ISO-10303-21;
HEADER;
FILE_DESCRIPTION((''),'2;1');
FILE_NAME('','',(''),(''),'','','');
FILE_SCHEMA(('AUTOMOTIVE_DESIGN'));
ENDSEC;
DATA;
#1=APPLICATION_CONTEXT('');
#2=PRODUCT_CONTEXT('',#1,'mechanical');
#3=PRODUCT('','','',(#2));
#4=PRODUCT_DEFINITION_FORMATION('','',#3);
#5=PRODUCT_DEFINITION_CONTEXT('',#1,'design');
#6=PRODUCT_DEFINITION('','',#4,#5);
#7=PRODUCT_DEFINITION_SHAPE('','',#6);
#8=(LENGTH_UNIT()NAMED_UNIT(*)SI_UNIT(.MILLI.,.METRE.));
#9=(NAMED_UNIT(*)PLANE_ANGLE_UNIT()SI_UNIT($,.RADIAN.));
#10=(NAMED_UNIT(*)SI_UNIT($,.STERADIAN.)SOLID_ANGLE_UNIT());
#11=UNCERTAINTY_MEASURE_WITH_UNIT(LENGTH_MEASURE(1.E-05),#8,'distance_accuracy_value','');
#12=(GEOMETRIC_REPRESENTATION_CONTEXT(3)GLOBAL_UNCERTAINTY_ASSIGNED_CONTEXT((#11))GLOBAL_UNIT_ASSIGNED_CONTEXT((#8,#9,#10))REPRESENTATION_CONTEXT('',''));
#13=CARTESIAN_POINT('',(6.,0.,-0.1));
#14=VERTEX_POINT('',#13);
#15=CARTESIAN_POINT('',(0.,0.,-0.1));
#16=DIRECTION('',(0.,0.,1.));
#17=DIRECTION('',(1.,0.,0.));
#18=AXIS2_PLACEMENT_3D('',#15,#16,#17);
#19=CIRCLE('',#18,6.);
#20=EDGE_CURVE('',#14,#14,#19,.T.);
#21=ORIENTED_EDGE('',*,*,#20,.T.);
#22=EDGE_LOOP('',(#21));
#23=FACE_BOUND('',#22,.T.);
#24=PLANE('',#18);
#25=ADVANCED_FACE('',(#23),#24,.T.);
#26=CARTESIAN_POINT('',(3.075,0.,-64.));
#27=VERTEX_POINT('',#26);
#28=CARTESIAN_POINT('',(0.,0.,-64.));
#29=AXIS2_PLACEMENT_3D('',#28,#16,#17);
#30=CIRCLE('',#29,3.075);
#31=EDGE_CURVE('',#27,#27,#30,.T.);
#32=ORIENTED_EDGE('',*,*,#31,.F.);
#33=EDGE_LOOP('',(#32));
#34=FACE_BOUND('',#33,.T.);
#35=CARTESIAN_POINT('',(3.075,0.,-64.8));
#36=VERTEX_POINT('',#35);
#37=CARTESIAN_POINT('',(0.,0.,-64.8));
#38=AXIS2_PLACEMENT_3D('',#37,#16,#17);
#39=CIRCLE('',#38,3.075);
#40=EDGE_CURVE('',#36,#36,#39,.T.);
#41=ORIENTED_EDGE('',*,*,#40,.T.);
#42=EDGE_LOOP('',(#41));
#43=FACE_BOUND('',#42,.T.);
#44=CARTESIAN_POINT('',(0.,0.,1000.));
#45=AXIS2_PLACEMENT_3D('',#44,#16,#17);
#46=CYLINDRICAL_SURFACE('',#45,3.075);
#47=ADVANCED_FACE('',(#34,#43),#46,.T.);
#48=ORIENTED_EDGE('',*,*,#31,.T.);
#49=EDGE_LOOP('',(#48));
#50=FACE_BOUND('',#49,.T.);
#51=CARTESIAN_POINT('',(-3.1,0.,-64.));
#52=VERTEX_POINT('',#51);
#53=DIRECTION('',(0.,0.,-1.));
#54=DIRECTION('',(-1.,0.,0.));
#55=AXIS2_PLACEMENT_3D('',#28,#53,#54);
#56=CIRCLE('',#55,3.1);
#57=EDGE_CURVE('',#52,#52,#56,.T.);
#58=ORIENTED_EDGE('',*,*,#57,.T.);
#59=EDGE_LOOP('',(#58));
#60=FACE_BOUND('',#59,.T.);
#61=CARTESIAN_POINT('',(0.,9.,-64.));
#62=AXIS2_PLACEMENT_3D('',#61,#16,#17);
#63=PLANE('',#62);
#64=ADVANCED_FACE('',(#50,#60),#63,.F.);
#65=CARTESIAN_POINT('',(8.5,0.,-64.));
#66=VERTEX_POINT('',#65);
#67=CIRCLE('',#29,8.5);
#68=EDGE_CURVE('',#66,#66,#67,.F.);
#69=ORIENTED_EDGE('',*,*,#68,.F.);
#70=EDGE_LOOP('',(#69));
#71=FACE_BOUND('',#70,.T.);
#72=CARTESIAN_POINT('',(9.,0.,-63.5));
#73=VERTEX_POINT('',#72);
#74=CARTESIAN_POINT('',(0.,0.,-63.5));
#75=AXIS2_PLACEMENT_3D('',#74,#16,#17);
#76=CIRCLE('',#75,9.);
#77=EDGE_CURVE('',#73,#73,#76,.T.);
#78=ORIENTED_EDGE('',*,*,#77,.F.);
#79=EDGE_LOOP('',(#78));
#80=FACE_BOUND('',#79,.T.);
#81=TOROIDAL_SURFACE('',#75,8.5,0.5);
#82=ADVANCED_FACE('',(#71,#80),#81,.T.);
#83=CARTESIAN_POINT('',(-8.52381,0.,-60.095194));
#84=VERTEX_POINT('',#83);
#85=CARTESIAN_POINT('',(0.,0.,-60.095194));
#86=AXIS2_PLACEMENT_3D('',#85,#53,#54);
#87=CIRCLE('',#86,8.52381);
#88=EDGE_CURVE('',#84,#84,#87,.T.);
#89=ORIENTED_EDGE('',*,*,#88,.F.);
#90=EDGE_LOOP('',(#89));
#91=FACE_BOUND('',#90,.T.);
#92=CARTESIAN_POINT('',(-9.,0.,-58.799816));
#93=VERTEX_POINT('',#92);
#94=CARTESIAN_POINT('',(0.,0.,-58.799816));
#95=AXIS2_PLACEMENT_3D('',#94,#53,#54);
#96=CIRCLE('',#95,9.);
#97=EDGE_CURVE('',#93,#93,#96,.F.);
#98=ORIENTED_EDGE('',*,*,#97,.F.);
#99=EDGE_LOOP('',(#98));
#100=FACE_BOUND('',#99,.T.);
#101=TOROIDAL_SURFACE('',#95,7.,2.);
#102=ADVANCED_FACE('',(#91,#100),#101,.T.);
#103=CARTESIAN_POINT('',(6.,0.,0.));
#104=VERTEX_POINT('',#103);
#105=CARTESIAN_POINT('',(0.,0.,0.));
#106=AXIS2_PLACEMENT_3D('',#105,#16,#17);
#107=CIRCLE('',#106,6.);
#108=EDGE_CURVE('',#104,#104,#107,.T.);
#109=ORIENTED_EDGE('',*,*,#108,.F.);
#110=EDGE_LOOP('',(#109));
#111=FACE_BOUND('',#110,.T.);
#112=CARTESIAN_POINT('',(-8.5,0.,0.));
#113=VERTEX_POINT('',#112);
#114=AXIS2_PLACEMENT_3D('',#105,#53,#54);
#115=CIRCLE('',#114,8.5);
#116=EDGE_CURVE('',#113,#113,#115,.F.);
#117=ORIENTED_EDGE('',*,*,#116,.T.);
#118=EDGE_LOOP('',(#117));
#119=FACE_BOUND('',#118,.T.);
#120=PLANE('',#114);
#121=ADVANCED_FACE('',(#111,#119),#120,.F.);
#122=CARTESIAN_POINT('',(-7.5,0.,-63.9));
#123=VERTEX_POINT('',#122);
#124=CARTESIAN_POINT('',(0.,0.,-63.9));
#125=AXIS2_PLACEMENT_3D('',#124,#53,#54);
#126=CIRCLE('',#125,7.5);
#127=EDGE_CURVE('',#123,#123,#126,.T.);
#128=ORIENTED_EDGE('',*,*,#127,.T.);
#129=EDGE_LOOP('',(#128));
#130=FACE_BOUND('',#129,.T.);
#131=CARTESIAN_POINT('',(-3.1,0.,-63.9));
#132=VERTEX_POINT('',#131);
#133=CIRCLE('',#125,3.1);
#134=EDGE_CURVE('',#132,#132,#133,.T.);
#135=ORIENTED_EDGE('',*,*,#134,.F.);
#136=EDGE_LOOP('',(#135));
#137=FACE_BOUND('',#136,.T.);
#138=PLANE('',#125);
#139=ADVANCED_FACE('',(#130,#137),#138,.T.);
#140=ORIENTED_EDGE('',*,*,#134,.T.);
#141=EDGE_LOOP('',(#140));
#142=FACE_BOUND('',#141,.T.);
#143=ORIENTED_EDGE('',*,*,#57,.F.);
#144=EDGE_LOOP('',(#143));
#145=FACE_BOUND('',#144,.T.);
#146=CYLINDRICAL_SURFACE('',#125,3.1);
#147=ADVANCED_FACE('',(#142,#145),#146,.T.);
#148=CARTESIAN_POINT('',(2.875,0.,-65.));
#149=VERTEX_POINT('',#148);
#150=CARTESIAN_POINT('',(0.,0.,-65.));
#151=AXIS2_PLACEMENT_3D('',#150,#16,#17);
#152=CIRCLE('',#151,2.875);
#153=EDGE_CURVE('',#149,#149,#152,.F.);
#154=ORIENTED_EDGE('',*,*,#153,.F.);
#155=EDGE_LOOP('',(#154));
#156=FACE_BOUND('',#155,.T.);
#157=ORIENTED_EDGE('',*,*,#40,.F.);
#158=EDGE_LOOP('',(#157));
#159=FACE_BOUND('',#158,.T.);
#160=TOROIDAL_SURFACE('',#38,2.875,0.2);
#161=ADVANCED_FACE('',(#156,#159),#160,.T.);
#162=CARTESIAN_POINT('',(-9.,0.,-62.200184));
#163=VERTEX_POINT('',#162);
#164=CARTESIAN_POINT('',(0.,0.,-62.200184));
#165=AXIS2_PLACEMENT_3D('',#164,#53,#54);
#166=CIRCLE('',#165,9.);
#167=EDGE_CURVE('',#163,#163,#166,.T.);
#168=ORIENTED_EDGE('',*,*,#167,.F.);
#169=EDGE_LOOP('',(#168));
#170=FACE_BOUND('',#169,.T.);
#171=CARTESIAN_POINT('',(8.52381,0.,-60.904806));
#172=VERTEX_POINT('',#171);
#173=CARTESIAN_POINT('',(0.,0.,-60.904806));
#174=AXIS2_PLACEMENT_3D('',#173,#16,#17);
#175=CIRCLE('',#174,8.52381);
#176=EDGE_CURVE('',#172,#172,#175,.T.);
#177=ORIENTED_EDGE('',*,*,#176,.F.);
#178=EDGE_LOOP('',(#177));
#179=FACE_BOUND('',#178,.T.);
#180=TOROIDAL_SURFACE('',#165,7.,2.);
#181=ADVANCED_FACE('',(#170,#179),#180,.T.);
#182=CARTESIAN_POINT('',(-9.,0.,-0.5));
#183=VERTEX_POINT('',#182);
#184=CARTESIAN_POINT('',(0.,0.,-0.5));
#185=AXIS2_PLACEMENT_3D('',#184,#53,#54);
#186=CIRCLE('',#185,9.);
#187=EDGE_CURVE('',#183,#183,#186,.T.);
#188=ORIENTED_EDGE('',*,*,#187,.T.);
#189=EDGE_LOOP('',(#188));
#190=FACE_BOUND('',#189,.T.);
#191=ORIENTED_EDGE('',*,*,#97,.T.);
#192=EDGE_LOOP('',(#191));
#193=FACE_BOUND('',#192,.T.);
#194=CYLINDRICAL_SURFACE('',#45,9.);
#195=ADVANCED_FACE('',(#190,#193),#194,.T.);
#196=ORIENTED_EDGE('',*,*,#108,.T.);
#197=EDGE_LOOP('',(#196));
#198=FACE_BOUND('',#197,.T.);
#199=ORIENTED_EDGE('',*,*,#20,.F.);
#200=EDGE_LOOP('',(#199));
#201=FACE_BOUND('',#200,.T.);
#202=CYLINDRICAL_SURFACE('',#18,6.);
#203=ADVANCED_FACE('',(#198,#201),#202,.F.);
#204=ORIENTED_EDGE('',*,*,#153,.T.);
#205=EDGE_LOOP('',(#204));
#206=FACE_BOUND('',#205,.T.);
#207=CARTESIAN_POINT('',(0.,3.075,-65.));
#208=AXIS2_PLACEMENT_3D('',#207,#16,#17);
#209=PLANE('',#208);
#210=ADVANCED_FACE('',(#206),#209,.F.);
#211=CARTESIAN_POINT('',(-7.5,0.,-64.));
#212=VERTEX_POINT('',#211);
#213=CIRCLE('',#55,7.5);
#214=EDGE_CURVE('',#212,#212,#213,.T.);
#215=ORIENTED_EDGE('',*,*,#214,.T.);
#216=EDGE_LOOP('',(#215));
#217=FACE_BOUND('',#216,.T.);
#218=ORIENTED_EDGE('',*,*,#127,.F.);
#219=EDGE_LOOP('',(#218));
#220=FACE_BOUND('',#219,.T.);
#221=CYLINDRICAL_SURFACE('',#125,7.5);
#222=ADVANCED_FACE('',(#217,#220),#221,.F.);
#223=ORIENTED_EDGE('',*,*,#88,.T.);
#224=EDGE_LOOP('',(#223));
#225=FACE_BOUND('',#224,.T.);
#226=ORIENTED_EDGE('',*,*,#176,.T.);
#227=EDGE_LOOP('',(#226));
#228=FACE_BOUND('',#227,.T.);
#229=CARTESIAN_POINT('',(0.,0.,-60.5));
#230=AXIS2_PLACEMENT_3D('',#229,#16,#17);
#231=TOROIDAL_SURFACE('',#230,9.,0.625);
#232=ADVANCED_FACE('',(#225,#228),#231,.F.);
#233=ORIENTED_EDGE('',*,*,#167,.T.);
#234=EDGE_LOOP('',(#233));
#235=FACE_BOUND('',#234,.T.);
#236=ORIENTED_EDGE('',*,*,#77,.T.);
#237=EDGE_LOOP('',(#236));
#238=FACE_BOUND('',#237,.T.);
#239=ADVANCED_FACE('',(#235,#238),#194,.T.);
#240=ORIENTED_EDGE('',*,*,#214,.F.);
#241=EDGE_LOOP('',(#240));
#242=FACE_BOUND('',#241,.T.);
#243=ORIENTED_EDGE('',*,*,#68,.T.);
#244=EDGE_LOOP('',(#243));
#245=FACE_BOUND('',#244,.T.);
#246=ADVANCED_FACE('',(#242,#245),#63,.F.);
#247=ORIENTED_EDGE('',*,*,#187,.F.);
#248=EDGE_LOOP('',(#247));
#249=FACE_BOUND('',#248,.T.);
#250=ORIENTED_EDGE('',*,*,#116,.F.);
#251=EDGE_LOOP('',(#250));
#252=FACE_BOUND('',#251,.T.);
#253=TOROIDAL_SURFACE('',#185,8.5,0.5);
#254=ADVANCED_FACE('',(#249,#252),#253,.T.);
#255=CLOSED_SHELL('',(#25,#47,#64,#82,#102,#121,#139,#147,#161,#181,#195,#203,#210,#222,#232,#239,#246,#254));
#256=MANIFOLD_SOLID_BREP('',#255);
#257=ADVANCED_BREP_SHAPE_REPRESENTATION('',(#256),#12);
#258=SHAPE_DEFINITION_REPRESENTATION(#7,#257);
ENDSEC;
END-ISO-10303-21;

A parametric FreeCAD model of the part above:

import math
import FreeCAD as App
import Part
import Sketcher


def edges_at(feature, points):
    """Names of the edges that pass closest to the given points."""
    edges = feature.Shape.Edges
    near = lambda p: min(range(len(edges)), key=lambda i: edges[i].distToShape(Part.Vertex(*p))[0])
    return sorted({f"Edge{near(p) + 1}" for p in points})

doc = App.newDocument("Part")
body = doc.addObject("PartDesign::Body", "Body")

sketch1 = body.newObject("Sketcher::SketchObject", "Sketch")
sketch1.AttachmentSupport = (doc.getObject("YZ_Plane"), [""])
sketch1.MapMode = "FlatFace"
sketch1.addGeometry([
    Part.LineSegment(App.Vector(9, 0, 0), App.Vector(0, 0, 0)),
    Part.LineSegment(App.Vector(0, 0, 0), App.Vector(0, -65, 0)),
    Part.LineSegment(App.Vector(0, -65, 0), App.Vector(3.1, -65, 0)),
    Part.LineSegment(App.Vector(3.1, -65, 0), App.Vector(3.1, -64, 0)),
    Part.LineSegment(App.Vector(3.1, -64, 0), App.Vector(9, -64, 0)),
    Part.LineSegment(App.Vector(9, -64, 0), App.Vector(9, -61.1, 0)),
    Part.ArcOfCircle(Part.Circle(App.Vector(9, -60.5, 0), App.Vector(0, 0, 1), 0.6), math.radians(90), math.radians(270)),
    Part.LineSegment(App.Vector(9, -59.9, 0), App.Vector(9, 0, 0)),
], False)
sketch1.addConstraint([
    Sketcher.Constraint("Coincident", 0, 2, 1, 1),
    Sketcher.Constraint("Coincident", 1, 2, 2, 1),
    Sketcher.Constraint("Coincident", 2, 2, 3, 1),
    Sketcher.Constraint("Coincident", 3, 2, 4, 1),
    Sketcher.Constraint("Coincident", 4, 2, 5, 1),
    Sketcher.Constraint("Coincident", 5, 2, 6, 2),
    Sketcher.Constraint("Coincident", 6, 1, 7, 1),
    Sketcher.Constraint("Coincident", 7, 2, 0, 1),
    Sketcher.Constraint("Horizontal", 0),
    Sketcher.Constraint("Vertical", 1),
    Sketcher.Constraint("Horizontal", 2),
    Sketcher.Constraint("Vertical", 3),
    Sketcher.Constraint("Horizontal", 4),
    Sketcher.Constraint("Vertical", 5),
    Sketcher.Constraint("Vertical", 7),
    Sketcher.Constraint("Coincident", 0, 2, -1, 1),
    Sketcher.Constraint("Vertical", 6, 3, 4, 2),
    Sketcher.Constraint("Vertical", 5, 2, 6, 1),
    Sketcher.Constraint("DistanceX", 0, 2, 0, 1, 9.0),
    Sketcher.Constraint("DistanceY", 1, 2, 1, 1, 65.0),
    Sketcher.Constraint("DistanceY", 3, 1, 3, 2, 1.0),
    Sketcher.Constraint("Radius", 6, 0.625),
    Sketcher.Constraint("DistanceY", 6, 3, -1, 1, 60.5),
    Sketcher.Constraint("DistanceX", 2, 1, 2, 2, 3.075),
])
revolution = body.newObject("PartDesign::Revolution", "Revolution")
revolution.Profile = sketch1
revolution.ReferenceAxis = (sketch1, ["V_Axis"])
revolution.Angle = 360
doc.recompute()

fillet = body.newObject("PartDesign::Fillet", "Fillet")
fillet.Base = (revolution, edges_at(revolution, [(-9, 0, 0), (-9, 0, -64)]))
fillet.Radius = 0.5
doc.recompute()

fillet2 = body.newObject("PartDesign::Fillet", "Fillet001")
fillet2.Base = (fillet, edges_at(fillet, [(-9, 0, -59.875), (-9, 0, -61.125)]))
fillet2.Radius = 2
doc.recompute()

fillet3 = body.newObject("PartDesign::Fillet", "Fillet002")
fillet3.Base = (fillet2, edges_at(fillet2, [(-3.075, 0, -65)]))
fillet3.Radius = 0.2

sketch2 = body.newObject("Sketcher::SketchObject", "Sketch001")
sketch2.AttachmentSupport = (doc.getObject("XY_Plane"), [""])
sketch2.MapMode = "FlatFace"
sketch2.addGeometry(Part.Circle(App.Vector(0, 0, 0), App.Vector(0, 0, 1), 6), False)
sketch2.addConstraint([
    Sketcher.Constraint("Coincident", 0, 3, -1, 1),
    Sketcher.Constraint("Diameter", 0, 12.0),
])
pocket1 = body.newObject("PartDesign::Pocket", "Pocket")
pocket1.Profile = sketch2
pocket1.Length = 0.1

sketch3 = body.newObject("Sketcher::SketchObject", "Sketch002")
sketch3.AttachmentSupport = (doc.getObject("XY_Plane"), [""])
sketch3.MapMode = "FlatFace"
sketch3.AttachmentOffset = App.Placement(App.Vector(0, 0, -64), App.Rotation())
sketch3.addGeometry([
    Part.Circle(App.Vector(0, 0, 0), App.Vector(0, 0, 1), 7.5),
    Part.Circle(App.Vector(0, 0, 0), App.Vector(0, 0, 1), 3.1),
], False)
sketch3.addConstraint([
    Sketcher.Constraint("Coincident", 0, 3, -1, 1),
    Sketcher.Constraint("Coincident", 1, 3, -1, 1),
    Sketcher.Constraint("Diameter", 0, 15.0),
    Sketcher.Constraint("Diameter", 1, 6.2),
])
pocket2 = body.newObject("PartDesign::Pocket", "Pocket001")
pocket2.Profile = sketch3
pocket2.Length = 0.1
pocket2.Reversed = True

doc.recompute()
